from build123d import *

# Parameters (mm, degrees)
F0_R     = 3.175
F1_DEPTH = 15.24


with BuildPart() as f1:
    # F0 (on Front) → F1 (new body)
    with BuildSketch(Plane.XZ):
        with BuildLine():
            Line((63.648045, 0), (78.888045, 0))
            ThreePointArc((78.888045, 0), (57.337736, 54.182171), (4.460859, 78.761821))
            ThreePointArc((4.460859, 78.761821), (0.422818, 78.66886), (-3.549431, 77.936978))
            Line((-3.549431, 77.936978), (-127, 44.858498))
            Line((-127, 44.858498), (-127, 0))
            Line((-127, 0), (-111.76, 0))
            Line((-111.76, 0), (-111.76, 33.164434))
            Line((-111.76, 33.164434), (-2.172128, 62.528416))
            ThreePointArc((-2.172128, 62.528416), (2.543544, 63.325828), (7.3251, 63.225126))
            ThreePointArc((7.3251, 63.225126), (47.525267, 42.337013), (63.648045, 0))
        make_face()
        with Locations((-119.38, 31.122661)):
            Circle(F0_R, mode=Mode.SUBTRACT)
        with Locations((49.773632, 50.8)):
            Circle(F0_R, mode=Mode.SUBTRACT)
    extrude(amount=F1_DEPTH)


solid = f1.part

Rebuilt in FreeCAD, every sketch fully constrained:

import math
import FreeCAD as App
import Part
import Sketcher

V = App.Vector
Q = App.Units.Quantity

doc = App.newDocument("Part")
body = doc.addObject("PartDesign::Body", "Body")

# Sketch on XZ plane
sketch1 = doc.addObject("Sketcher::SketchObject", "Sketch")
body.addObject(sketch1)
sketch1.AttachmentSupport = (doc.XZ_Plane, [""])
sketch1.MapMode = "FlatFace"
sketch1.addGeometry([
    Part.LineSegment(V(63.6, 0, 0), V(78.9, 0, 0)),  # 0
    Part.ArcOfCircle(Part.Circle(V(0, 0, 0), V(0, 0, 1), 78.9), math.radians(0), math.radians(87)),  # 1
    Part.ArcOfCircle(Part.Circle(V(3, 53.4, 0), V(0, 0, 1), 25.4), math.radians(86.76), math.radians(105)),  # 2
    Part.LineSegment(V(-3.5, 77.9, 0), V(-127, 44.9, 0)),  # 3
    Part.LineSegment(V(-127, 44.9, 0), V(-127, 0, 0)),  # 4
    Part.LineSegment(V(-127, 0, 0), V(-111.8, 0, 0)),  # 5
    Part.LineSegment(V(-111.8, 0, 0), V(-111.8, 33.2, 0)),  # 6
    Part.LineSegment(V(-111.8, 33.2, 0), V(-2.2, 62.5, 0)),  # 7
    Part.ArcOfCircle(Part.Circle(V(4.4, 38, 0), V(0, 0, 1), 25.4), math.radians(83), math.radians(105)),  # 8
    Part.ArcOfCircle(Part.Circle(V(0, 0, 0), V(0, 0, 1), 63.6), math.radians(0), math.radians(83)),  # 9
    Part.Circle(V(-119.4, 31.1, 0), V(0, 0, 1), 3.2),  # 10
    Part.Circle(V(49.8, 50.8, 0), V(0, 0, 1), 3.2),  # 11
], False)
sketch1.addConstraint([
    Sketcher.Constraint("Coincident", 0, 2, 1, 1),
    Sketcher.Constraint("Tangent", 1, 2, 2, 1),
    Sketcher.Constraint("Tangent", 2, 2, 3, 1),
    Sketcher.Constraint("Coincident", 3, 2, 4, 1),
    Sketcher.Constraint("Coincident", 4, 2, 5, 1),
    Sketcher.Constraint("Coincident", 5, 2, 6, 1),
    Sketcher.Constraint("Coincident", 6, 2, 7, 1),
    Sketcher.Constraint("Tangent", 7, 2, 8, 2),
    Sketcher.Constraint("Tangent", 8, 1, 9, 2),
    Sketcher.Constraint("Coincident", 9, 1, 0, 1),
    Sketcher.Constraint("Horizontal", 0),
    Sketcher.Constraint("Vertical", 4),
    Sketcher.Constraint("Horizontal", 5),
    Sketcher.Constraint("Vertical", 6),
    Sketcher.Constraint("Coincident", 1, 3, -1, 1),
    Sketcher.Constraint("Coincident", 9, 3, -1, 1),
    Sketcher.Constraint("Equal", 10, 11),
    Sketcher.Constraint("PointOnObject", 0, 2, -1),
    Sketcher.Constraint("PointOnObject", 4, 2, -1),
    Sketcher.Constraint("Parallel", 3, 7),
    Sketcher.Constraint("Equal", 0, 5),
    Sketcher.Constraint("Diameter", 10, Q("0.25 in")),
    Sketcher.Constraint("DistanceX", 0, 1, 0, 2, Q("0.6 in")),
    Sketcher.Constraint("DistanceY", -1, 1, 11, 3, Q("2 in")),
    Sketcher.Constraint("DistanceX", 3, 2, -1, 1, Q("5 in")),
    Sketcher.Constraint("Angle", 3, Q("-165 deg")),
    Sketcher.Constraint("DistanceX", 10, 3, -1, 1, Q("4.7 in")),
    Sketcher.Constraint("Radius", 1, 78.888046),
    Sketcher.Constraint("Radius", 2, 25.400013),
    Sketcher.Constraint("Radius", 8, 25.400033),
    Sketcher.Constraint("DistanceX", -1, 1, 8, 1, 7.3251),
    Sketcher.Constraint("DistanceY", 1, 3, 3, 2, 44.858499),
    Sketcher.Constraint("DistanceY", -1, 1, 10, 3, 31.122661),
    Sketcher.Constraint("DistanceX", 9, 3, 11, 3, 49.773631),
])
pad1 = doc.addObject("PartDesign::Pad", "Pad")
body.addObject(pad1)
pad1.Profile = sketch1
pad1.Length = Q("0.6 in")

doc.recompute()
